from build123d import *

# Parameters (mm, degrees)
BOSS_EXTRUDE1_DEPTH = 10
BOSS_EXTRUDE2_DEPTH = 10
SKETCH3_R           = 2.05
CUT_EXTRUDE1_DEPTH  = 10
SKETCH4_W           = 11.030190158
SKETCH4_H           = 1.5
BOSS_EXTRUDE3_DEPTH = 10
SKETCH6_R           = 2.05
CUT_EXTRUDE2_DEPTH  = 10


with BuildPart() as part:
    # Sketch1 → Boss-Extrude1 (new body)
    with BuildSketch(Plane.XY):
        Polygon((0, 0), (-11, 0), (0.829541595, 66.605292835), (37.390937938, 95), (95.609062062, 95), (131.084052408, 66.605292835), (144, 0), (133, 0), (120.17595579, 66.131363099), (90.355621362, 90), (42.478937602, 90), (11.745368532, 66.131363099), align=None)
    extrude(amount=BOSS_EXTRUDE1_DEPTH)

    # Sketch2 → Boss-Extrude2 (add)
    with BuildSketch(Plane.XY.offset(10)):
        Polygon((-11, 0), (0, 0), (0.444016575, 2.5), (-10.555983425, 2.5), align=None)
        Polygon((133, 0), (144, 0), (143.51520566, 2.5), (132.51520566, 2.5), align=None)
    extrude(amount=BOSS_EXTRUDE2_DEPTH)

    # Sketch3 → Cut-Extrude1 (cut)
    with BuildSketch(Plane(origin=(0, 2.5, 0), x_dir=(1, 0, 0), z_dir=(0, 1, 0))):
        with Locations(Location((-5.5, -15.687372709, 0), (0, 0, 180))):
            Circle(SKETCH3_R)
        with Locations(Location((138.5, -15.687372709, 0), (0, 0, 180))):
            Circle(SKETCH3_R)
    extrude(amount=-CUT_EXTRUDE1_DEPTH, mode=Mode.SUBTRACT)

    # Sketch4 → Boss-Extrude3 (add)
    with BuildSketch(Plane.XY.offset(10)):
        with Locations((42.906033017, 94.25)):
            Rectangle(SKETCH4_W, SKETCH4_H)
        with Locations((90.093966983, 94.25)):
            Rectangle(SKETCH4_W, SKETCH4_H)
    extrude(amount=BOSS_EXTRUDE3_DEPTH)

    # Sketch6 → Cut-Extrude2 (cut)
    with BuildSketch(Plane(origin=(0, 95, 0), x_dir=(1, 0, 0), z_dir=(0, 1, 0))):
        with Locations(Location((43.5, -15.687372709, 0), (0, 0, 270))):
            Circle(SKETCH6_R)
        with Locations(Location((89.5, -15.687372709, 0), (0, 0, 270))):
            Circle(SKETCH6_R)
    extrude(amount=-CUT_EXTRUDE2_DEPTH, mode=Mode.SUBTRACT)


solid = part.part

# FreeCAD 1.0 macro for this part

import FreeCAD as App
import Part
import Sketcher
Q = App.Units.Quantity


def add_polygon(sketch, points):
    """Adds a closed chain of lines whose ends are joined by coincident constraints."""
    first, n = sketch.GeometryCount, len(points)
    for a, b in zip(points, points[1:] + points[:1]):
        sketch.addGeometry(Part.LineSegment(App.Vector(*a, 0), App.Vector(*b, 0)), False)
    for i in range(n):
        sketch.addConstraint(Sketcher.Constraint("Coincident", first + i, 2, first + (i + 1) % n, 1))

doc = App.newDocument("Part")
body = doc.addObject("PartDesign::Body", "Body")

sketch1 = doc.addObject("Sketcher::SketchObject", "Sketch")
body.addObject(sketch1)
sketch1.AttachmentSupport = (doc.XY_Plane, [""])
sketch1.MapMode = "FlatFace"
add_polygon(sketch1, [(-11, 0), (0, 0), (11.745369, 66.131363), (42.478938, 90), (90.355621, 90), (120.175956, 66.131363), (133, 0), (144, 0), (131.084052, 66.605293), (95.609062, 95), (37.390938, 95), (0.829542, 66.605293)])
sketch1.addConstraint([
    Sketcher.Constraint("Horizontal", 0),
    Sketcher.Constraint("Horizontal", 3),
    Sketcher.Constraint("Horizontal", 6),
    Sketcher.Constraint("Horizontal", 9),
    Sketcher.Constraint("Coincident", 0, 2, -1, 1),
    Sketcher.Constraint("PointOnObject", 5, 2, -1),
    Sketcher.Constraint("Parallel", 5, 7),
    Sketcher.Constraint("Parallel", 4, 8),
    Sketcher.Constraint("Parallel", 2, 10),
    Sketcher.Constraint("Parallel", 1, 11),
    Sketcher.Constraint("Horizontal", 1, 2, 4, 2),
    Sketcher.Constraint("Horizontal", 7, 2, 10, 2),
    Sketcher.Constraint("Equal", 0, 6),
    Sketcher.Constraint("DistanceX", 0, 1, 0, 2, Q("11 mm")),
    Sketcher.Constraint("DistanceY", -1, 1, 2, 2, Q("90 mm")),
    Sketcher.Constraint("DistanceX", -1, 1, 5, 2, Q("133 mm")),
    Sketcher.Constraint("DistanceY", -1, 1, 8, 2, Q("95 mm")),
    Sketcher.Constraint("DistanceX", 9, 2, 2, 2, Q("5.088 mm")),
    Sketcher.Constraint("Distance", 4, Q("38.19639 mm")),
    Sketcher.Constraint("Distance", 7, Q("67.846052 mm")),
    Sketcher.Constraint("Distance", 11, Q("67.647639 mm")),
    Sketcher.Constraint("DistanceX", 3, 1, 3, 2, Q("47.876684 mm")),
    Sketcher.Constraint("DistanceX", 9, 2, 9, 1, Q("58.218124 mm")),
])
pad1 = doc.addObject("PartDesign::Pad", "Pad")
body.addObject(pad1)
pad1.Profile = sketch1
pad1.Length = 10

sketch2 = doc.addObject("Sketcher::SketchObject", "Sketch001")
body.addObject(sketch2)
sketch2.AttachmentSupport = (doc.XY_Plane, [""])
sketch2.MapMode = "FlatFace"
sketch2.AttachmentOffset = App.Placement(App.Vector(0, 0, 10), App.Rotation())
add_polygon(sketch2, [(-11, 0), (0, 0), (0.444017, 2.5), (-10.555983, 2.5)])
add_polygon(sketch2, [(133, 0), (144, 0), (143.515206, 2.5), (132.515206, 2.5)])
sketch2.addConstraint([
    Sketcher.Constraint("Horizontal", 0),
    Sketcher.Constraint("Horizontal", 2),
    Sketcher.Constraint("Horizontal", 4),
    Sketcher.Constraint("Horizontal", 6),
    Sketcher.Constraint("Coincident", 0, 2, -1, 1),
    Sketcher.Constraint("PointOnObject", 4, 2, -1),
    Sketcher.Constraint("Parallel", 1, 3),
    Sketcher.Constraint("Parallel", 5, 7),
    Sketcher.Constraint("Horizontal", 2, 2, 5, 2),
    Sketcher.Constraint("Equal", 2, 4),
    Sketcher.Constraint("DistanceX", 0, 1, 0, 2, Q("11 mm")),
    Sketcher.Constraint("DistanceX", -1, 1, 4, 2, Q("144 mm")),
    Sketcher.Constraint("DistanceY", -1, 1, 1, 2, Q("2.5 mm")),
    Sketcher.Constraint("Distance", 5, Q("2.546571 mm")),
    Sketcher.Constraint("DistanceX", 1, 2, 5, 2, Q("143.071189 mm")),
])
pad2 = doc.addObject("PartDesign::Pad", "Pad001")
body.addObject(pad2)
pad2.Profile = sketch2
pad2.Length = 10

sketch3 = doc.addObject("Sketcher::SketchObject", "Sketch002")
body.addObject(sketch3)
sketch3.AttachmentSupport = (doc.XZ_Plane, [""])
sketch3.MapMode = "FlatFace"
sketch3.AttachmentOffset = App.Placement(App.Vector(0, 0, -2.5), App.Rotation())
sketch3.addGeometry([
    Part.Circle(App.Vector(-5.5, 15.687373, 0), App.Vector(0, 0, 1), 2.05),
    Part.Circle(App.Vector(138.5, 15.687373, 0), App.Vector(0, 0, 1), 2.05),
], False)
sketch3.addConstraint([
    Sketcher.Constraint("Equal", 0, 1),
    Sketcher.Constraint("Horizontal", 0, 3, 1, 3),
    Sketcher.Constraint("Diameter", 0, Q("4.1 mm")),
    Sketcher.Constraint("DistanceX", 0, 3, 1, 3, Q("144 mm")),
    Sketcher.Constraint("DistanceX", 0, 3, -1, 1, Q("5.5 mm")),
    Sketcher.Constraint("DistanceY", -1, 1, 0, 3, Q("15.687373 mm")),
])
pocket1 = doc.addObject("PartDesign::Pocket", "Pocket")
body.addObject(pocket1)
pocket1.Profile = sketch3
pocket1.Length = 10
pocket1.Reversed = True

sketch4 = doc.addObject("Sketcher::SketchObject", "Sketch003")
body.addObject(sketch4)
sketch4.AttachmentSupport = (doc.XY_Plane, [""])
sketch4.MapMode = "FlatFace"
sketch4.AttachmentOffset = App.Placement(App.Vector(0, 0, 10), App.Rotation())
add_polygon(sketch4, [(37.390938, 95), (37.390938, 93.5), (48.421128, 93.5), (48.421128, 95)])
add_polygon(sketch4, [(84.578872, 95), (84.578872, 93.5), (95.609062, 93.5), (95.609062, 95)])
sketch4.addConstraint([
    Sketcher.Constraint("Vertical", 0),
    Sketcher.Constraint("Horizontal", 1),
    Sketcher.Constraint("Vertical", 2),
    Sketcher.Constraint("Horizontal", 3),
    Sketcher.Constraint("Vertical", 4),
    Sketcher.Constraint("Horizontal", 5),
    Sketcher.Constraint("Vertical", 6),
    Sketcher.Constraint("Horizontal", 7),
    Sketcher.Constraint("Horizontal", 1, 2, 4, 2),
    Sketcher.Constraint("Horizontal", 3, 2, 6, 2),
    Sketcher.Constraint("Equal", 3, 5),
    Sketcher.Constraint("DistanceY", 0, 2, 0, 1, Q("1.5 mm")),
    Sketcher.Constraint("DistanceY", -1, 1, 2, 2, Q("95 mm")),
    Sketcher.Constraint("DistanceX", 1, 1, 1, 2, Q("11.03019 mm")),
    Sketcher.Constraint("DistanceX", -1, 1, 1, 2, Q("48.421128 mm")),
    Sketcher.Constraint("DistanceX", -1, 1, 4, 2, Q("84.578872 mm")),
])
pad3 = doc.addObject("PartDesign::Pad", "Pad002")
body.addObject(pad3)
pad3.Profile = sketch4
pad3.Length = 10

sketch5 = doc.addObject("Sketcher::SketchObject", "Sketch004")
body.addObject(sketch5)
sketch5.AttachmentSupport = (doc.XZ_Plane, [""])
sketch5.MapMode = "FlatFace"
sketch5.AttachmentOffset = App.Placement(App.Vector(0, 0, -95), App.Rotation())
sketch5.addGeometry([
    Part.Circle(App.Vector(43.5, 15.687373, 0), App.Vector(0, 0, 1), 2.05),
    Part.Circle(App.Vector(89.5, 15.687373, 0), App.Vector(0, 0, 1), 2.05),
], False)
sketch5.addConstraint([
    Sketcher.Constraint("Equal", 0, 1),
    Sketcher.Constraint("Horizontal", 0, 3, 1, 3),
    Sketcher.Constraint("Diameter", 0, Q("4.1 mm")),
    Sketcher.Constraint("DistanceX", 0, 3, 1, 3, Q("46 mm")),
    Sketcher.Constraint("DistanceX", -1, 1, 0, 3, Q("43.5 mm")),
    Sketcher.Constraint("DistanceY", -1, 1, 0, 3, Q("15.687373 mm")),
])
pocket2 = doc.addObject("PartDesign::Pocket", "Pocket001")
body.addObject(pocket2)
pocket2.Profile = sketch5
pocket2.Length = 10
pocket2.Reversed = True

doc.recompute()
